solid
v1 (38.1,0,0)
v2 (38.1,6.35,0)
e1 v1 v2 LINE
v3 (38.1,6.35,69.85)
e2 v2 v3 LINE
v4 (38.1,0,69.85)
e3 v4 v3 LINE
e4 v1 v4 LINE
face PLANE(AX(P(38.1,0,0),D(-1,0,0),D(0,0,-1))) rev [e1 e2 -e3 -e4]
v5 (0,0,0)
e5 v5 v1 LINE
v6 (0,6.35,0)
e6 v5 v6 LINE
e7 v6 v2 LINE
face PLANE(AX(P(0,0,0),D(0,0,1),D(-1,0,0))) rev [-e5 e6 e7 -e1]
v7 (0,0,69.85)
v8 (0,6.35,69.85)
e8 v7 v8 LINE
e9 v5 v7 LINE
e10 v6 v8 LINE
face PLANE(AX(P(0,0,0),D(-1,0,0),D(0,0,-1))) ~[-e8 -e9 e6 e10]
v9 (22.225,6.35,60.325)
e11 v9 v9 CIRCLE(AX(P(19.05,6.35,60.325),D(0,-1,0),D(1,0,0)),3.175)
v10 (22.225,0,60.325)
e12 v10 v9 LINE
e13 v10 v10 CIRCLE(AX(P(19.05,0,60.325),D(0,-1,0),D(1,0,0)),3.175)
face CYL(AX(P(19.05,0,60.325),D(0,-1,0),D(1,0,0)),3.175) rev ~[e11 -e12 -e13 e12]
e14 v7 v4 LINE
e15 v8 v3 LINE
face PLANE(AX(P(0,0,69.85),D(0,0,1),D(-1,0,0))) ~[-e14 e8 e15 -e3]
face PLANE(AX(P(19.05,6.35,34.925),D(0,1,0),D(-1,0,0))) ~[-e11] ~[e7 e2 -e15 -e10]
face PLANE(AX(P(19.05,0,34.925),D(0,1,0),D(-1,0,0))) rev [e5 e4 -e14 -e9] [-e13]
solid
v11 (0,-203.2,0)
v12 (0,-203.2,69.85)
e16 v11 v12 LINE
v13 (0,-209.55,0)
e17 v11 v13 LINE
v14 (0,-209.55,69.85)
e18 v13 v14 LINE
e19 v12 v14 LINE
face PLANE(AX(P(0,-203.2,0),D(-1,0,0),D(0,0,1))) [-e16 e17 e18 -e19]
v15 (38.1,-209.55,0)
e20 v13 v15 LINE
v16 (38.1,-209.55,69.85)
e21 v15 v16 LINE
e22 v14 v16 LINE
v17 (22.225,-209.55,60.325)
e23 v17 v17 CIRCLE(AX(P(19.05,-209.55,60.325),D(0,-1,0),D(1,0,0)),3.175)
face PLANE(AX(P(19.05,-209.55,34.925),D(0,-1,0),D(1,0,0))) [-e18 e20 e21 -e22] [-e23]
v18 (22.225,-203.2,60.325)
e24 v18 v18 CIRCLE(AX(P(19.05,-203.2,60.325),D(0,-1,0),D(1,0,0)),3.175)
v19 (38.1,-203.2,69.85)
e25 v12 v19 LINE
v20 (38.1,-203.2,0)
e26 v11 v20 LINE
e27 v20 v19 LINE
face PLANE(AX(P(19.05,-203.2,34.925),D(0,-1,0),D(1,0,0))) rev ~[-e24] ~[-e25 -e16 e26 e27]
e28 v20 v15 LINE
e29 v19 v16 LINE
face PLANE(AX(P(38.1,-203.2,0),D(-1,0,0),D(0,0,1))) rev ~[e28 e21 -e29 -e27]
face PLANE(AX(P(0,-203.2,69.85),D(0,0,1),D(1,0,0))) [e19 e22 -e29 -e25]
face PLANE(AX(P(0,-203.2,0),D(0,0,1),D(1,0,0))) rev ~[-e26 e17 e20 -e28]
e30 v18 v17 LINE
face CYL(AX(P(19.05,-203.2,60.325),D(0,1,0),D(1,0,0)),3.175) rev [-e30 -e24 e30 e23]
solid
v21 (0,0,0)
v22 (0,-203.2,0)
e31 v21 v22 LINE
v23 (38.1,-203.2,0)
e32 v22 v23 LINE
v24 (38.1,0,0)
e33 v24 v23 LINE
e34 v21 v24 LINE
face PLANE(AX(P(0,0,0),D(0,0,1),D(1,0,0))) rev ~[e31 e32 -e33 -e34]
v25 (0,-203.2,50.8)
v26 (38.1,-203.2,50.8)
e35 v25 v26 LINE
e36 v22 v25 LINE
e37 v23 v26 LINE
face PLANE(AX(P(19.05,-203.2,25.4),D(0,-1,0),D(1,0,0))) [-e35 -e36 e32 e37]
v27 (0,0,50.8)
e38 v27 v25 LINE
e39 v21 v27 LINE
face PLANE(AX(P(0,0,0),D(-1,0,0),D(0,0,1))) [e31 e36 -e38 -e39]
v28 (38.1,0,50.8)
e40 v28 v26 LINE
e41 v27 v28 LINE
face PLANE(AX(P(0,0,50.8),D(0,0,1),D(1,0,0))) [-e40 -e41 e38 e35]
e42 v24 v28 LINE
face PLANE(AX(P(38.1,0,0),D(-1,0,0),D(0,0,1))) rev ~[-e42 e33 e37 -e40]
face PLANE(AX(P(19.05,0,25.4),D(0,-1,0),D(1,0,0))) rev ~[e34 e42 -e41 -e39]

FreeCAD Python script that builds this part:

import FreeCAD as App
import Part
import Sketcher

V = App.Vector
Q = App.Units.Quantity


def add_polygon(sketch, points):
    """Adds a closed chain of lines whose ends are joined by coincident constraints."""
    first, n = sketch.GeometryCount, len(points)
    for a, b in zip(points, points[1:] + points[:1]):
        sketch.addGeometry(Part.LineSegment(App.Vector(*a, 0), App.Vector(*b, 0)), False)
    for i in range(n):
        sketch.addConstraint(Sketcher.Constraint("Coincident", first + i, 2, first + (i + 1) % n, 1))

doc = App.newDocument("Part")
body = doc.addObject("PartDesign::Body", "Body")

sketch1 = body.newObject("Sketcher::SketchObject", "Sketch")
sketch1.AttachmentSupport = (doc.getObject("XZ_Plane"), [""])
sketch1.MapMode = "FlatFace"
add_polygon(sketch1, [(0, 51), (0, 0), (38, 0), (38, 51)])
sketch1.addConstraint([
    Sketcher.Constraint("Vertical", 0),
    Sketcher.Constraint("Horizontal", 1),
    Sketcher.Constraint("Vertical", 2),
    Sketcher.Constraint("Horizontal", 3),
    Sketcher.Constraint("Coincident", 0, 2, -1, 1),
    Sketcher.Constraint("DistanceY", 0, 2, 0, 1, Q("2 in")),
    Sketcher.Constraint("DistanceX", 1, 1, 1, 2, Q("1.5 in")),
])
pad1 = body.newObject("PartDesign::Pad", "Pad")
pad1.Profile = sketch1
pad1.Length = Q("8 in")
body2 = doc.addObject("PartDesign::Body", "Body001")

sketch2 = body2.newObject("Sketcher::SketchObject", "Sketch001")
sketch2.AttachmentSupport = (doc.getObject("XZ_Plane001"), [""])
sketch2.MapMode = "FlatFace"
sketch2.AttachmentOffset = App.Placement(V(0, 0, 8 * 25.4), App.Rotation())
add_polygon(sketch2, [(0, 69.8), (0, 0), (38.1, 0), (38.1, 69.8)])
sketch2.addGeometry(Part.Circle(V(19.1, 60.3, 0), V(0, 0, 1), 3.2), False)
sketch2.addConstraint([
    Sketcher.Constraint("Vertical", 0),
    Sketcher.Constraint("Horizontal", 1),
    Sketcher.Constraint("Vertical", 2),
    Sketcher.Constraint("Horizontal", 3),
    Sketcher.Constraint("Coincident", 0, 2, -1, 1),
    Sketcher.Constraint("Diameter", 4, Q("0.25 in")),
    Sketcher.Constraint("DistanceX", 1, 1, 1, 2, Q("1.5 in")),
    Sketcher.Constraint("DistanceY", 0, 2, 0, 1, Q("2.75 in")),
    Sketcher.Constraint("DistanceX", -1, 1, 4, 3, Q("0.75 in")),
    Sketcher.Constraint("DistanceY", -1, 1, 4, 3, Q("2.375 in")),
])
pad2 = body2.newObject("PartDesign::Pad", "Pad001")
pad2.Profile = sketch2
pad2.Length = Q("0.25 in")
body3 = doc.addObject("PartDesign::Body", "Body002")
doc.recompute()

mirroring = doc.addObject("Part::Mirroring", "Mirroring")
mirroring.Source = body2
mirroring.Base = V(0, -101.6, 50.8)
mirroring.Normal = V(0, -1, 0)
body3.BaseFeature = mirroring
doc.recompute()
mirroring.Visibility = False

doc.recompute()
